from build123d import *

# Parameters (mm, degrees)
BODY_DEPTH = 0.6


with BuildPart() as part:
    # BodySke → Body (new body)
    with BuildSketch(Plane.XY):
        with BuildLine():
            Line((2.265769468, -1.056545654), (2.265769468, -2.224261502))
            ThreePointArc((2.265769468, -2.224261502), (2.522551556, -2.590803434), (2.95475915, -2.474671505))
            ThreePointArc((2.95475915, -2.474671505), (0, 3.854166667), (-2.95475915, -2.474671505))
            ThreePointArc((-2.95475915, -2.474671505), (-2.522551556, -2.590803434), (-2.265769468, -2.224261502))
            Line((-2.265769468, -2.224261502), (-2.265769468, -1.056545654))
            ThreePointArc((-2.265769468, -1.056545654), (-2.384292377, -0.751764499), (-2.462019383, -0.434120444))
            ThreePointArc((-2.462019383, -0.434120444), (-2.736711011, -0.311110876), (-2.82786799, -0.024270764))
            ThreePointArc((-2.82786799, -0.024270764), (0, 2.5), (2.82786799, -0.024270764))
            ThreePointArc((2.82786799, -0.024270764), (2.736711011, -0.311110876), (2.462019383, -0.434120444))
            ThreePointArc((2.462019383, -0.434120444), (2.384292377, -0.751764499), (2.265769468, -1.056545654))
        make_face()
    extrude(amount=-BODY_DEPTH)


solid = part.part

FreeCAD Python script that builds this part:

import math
import FreeCAD as App
import Part
import Sketcher

V = App.Vector

doc = App.newDocument("Part")
body = doc.addObject("PartDesign::Body", "Body")

sketch1 = body.newObject("Sketcher::SketchObject", "Sketch")
sketch1.AttachmentSupport = (doc.getObject("XY_Plane"), [""])
sketch1.MapMode = "FlatFace"
sketch1.addGeometry(Part.LineSegment(V(2.27, -1.06, 0), V(2.27, -2.22, 0)), False)
sketch1.addGeometry(Part.ArcOfCircle(Part.Circle(V(2.66, -2.22, 0), V(0, 0, 1), 0.39), math.radians(180), math.radians(320)), False)
sketch1.addGeometry(Part.ArcOfCircle(Part.Circle(V(0, 0, 0), V(0, 0, 1), 3.85), math.radians(-40), math.radians(220)), False)
sketch1.addGeometry(Part.ArcOfCircle(Part.Circle(V(-2.66, -2.22, 0), V(0, 0, 1), 0.39), math.radians(-140), math.radians(0)), False)
sketch1.addGeometry(Part.LineSegment(V(-2.27, -2.22, 0), V(-2.27, -1.06, 0)), False)
sketch1.addGeometry(Part.ArcOfCircle(Part.Circle(V(0, 0, 0), V(0, 0, 1), 2.5), math.radians(-170), math.radians(-155)), False)
sketch1.addGeometry(Part.ArcOfCircle(Part.Circle(V(-2.46, -0.07, 0), V(0, 0, 1), 0.37), math.radians(174), math.radians(270)), False)
sketch1.addGeometry(Part.ArcOfCircle(Part.Circle(V(0, -0.35, 0), V(0, 0, 1), 2.85), math.radians(6), math.radians(174)), False)
sketch1.addGeometry(Part.ArcOfCircle(Part.Circle(V(2.46, -0.07, 0), V(0, 0, 1), 0.37), math.radians(-90), math.radians(6)), False)
sketch1.addGeometry(Part.ArcOfCircle(Part.Circle(V(0, 0, 0), V(0, 0, 1), 2.5), math.radians(-25), math.radians(-10)), False)
sketch1.addConstraint(Sketcher.Constraint("Tangent", 0, 2, 1, 1))
sketch1.addConstraint(Sketcher.Constraint("Tangent", 1, 2, 2, 1))
sketch1.addConstraint(Sketcher.Constraint("Tangent", 2, 2, 3, 1))
sketch1.addConstraint(Sketcher.Constraint("Tangent", 3, 2, 4, 1))
sketch1.addConstraint(Sketcher.Constraint("Coincident", 4, 2, 5, 2))
sketch1.addConstraint(Sketcher.Constraint("Coincident", 5, 1, 6, 2))
sketch1.addConstraint(Sketcher.Constraint("Tangent", 6, 1, 7, 2))
sketch1.addConstraint(Sketcher.Constraint("Tangent", 7, 1, 8, 2))
sketch1.addConstraint(Sketcher.Constraint("Coincident", 8, 1, 9, 2))
sketch1.addConstraint(Sketcher.Constraint("Coincident", 9, 1, 0, 1))
sketch1.addConstraint(Sketcher.Constraint("Vertical", 0))
sketch1.addConstraint(Sketcher.Constraint("Vertical", 4))
sketch1.addConstraint(Sketcher.Constraint("Coincident", 2, 3, -1, 1))
sketch1.addConstraint(Sketcher.Constraint("Coincident", 5, 3, -1, 1))
sketch1.addConstraint(Sketcher.Constraint("Coincident", 9, 3, -1, 1))
sketch1.addConstraint(Sketcher.Constraint("Equal", 1, 3))
sketch1.addConstraint(Sketcher.Constraint("Equal", 6, 8))
sketch1.addConstraint(Sketcher.Constraint("Equal", 5, 9))
sketch1.addConstraint(Sketcher.Constraint("Symmetric", 6, 3, 8, 3, -2))
sketch1.addConstraint(Sketcher.Constraint("Horizontal", 1, 3, 3, 3))
sketch1.addConstraint(Sketcher.Constraint("Vertical", 6, 3, 5, 1))
sketch1.addConstraint(Sketcher.Constraint("Radius", 5, 2.5))
sketch1.addConstraint(Sketcher.Constraint("Radius", 1, 0.39))
sketch1.addConstraint(Sketcher.Constraint("Radius", 6, 0.368211))
sketch1.addConstraint(Sketcher.Constraint("Radius", 2, 3.854167))
sketch1.addConstraint(Sketcher.Constraint("Radius", 7, 2.846125))
sketch1.addConstraint(Sketcher.Constraint("DistanceX", 6, 1, 4, 2, 0.562099))
sketch1.addConstraint(Sketcher.Constraint("DistanceY", 1, 2, 7, 1, 2.450401))
pad1 = body.newObject("PartDesign::Pad", "Pad")
pad1.Profile = sketch1
pad1.Length = 0.6
pad1.Reversed = True

doc.recompute()
